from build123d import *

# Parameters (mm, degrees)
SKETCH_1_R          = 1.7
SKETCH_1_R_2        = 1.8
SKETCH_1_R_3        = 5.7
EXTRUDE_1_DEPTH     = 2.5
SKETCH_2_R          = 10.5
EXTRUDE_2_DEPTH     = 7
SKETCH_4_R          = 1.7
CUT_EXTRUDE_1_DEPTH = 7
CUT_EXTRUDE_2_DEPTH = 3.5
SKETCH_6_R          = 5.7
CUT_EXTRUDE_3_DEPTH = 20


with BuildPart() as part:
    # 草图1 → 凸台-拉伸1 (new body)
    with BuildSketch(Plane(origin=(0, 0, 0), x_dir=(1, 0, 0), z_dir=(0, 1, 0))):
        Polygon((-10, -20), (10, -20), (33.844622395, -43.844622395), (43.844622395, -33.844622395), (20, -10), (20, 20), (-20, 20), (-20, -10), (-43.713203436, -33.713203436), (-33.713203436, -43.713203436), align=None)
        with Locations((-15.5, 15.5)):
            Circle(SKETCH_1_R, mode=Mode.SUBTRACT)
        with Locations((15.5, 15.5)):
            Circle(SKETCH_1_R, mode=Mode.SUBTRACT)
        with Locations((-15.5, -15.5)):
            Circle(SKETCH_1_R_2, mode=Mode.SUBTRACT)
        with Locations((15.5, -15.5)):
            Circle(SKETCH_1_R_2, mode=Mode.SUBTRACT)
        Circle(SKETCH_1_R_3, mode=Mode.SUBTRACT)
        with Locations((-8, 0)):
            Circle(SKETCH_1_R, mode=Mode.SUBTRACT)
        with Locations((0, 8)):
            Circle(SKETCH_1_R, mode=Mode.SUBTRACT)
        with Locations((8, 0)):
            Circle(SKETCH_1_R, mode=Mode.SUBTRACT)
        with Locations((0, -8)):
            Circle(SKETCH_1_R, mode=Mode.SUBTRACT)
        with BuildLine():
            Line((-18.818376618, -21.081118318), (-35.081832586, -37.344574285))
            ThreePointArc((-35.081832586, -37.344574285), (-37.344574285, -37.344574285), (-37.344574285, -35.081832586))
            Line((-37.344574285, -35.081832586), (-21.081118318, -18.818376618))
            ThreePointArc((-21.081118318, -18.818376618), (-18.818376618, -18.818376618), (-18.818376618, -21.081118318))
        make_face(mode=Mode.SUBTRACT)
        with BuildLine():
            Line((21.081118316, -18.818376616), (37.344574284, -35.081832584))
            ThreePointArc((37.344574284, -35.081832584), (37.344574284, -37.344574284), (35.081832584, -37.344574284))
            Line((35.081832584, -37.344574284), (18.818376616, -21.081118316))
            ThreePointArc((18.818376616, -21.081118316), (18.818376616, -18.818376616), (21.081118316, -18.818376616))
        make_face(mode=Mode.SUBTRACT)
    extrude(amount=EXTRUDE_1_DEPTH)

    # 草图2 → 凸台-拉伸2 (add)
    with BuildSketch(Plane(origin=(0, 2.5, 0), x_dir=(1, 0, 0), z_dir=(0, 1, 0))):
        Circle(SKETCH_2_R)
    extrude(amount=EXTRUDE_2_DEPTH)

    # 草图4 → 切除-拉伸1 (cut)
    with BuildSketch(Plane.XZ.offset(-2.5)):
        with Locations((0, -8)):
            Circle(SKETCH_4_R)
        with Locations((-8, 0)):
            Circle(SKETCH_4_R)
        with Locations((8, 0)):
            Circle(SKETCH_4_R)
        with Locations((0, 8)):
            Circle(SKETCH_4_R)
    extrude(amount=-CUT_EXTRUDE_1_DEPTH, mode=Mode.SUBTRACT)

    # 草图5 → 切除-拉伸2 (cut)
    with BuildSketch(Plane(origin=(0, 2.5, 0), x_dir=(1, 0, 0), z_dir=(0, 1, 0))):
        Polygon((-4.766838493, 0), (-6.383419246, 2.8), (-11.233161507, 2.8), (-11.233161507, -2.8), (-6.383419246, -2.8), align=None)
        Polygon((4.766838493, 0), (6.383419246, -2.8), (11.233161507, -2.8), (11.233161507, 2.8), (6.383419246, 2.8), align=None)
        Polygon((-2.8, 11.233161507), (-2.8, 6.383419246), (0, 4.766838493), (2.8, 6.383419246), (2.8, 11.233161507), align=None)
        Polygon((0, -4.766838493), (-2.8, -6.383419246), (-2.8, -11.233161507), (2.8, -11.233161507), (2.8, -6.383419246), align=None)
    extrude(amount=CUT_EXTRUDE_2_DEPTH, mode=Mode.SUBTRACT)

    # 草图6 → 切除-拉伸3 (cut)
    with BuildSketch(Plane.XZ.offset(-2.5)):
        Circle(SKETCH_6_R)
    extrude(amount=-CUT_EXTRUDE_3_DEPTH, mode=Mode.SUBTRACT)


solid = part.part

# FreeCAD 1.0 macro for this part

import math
import FreeCAD as App
import Part
import Sketcher
from FreeCAD import Vector
Q = App.Units.Quantity


def add_polygon(sketch, points):
    """Adds a closed chain of lines whose ends are joined by coincident constraints."""
    first, n = sketch.GeometryCount, len(points)
    for a, b in zip(points, points[1:] + points[:1]):
        sketch.addGeometry(Part.LineSegment(App.Vector(*a, 0), App.Vector(*b, 0)), False)
    for i in range(n):
        sketch.addConstraint(Sketcher.Constraint("Coincident", first + i, 2, first + (i + 1) % n, 1))

doc = App.newDocument("Part")
body = doc.addObject("PartDesign::Body", "Body")

# Sketch on XZ plane
sketch1 = body.newObject("Sketcher::SketchObject", "Sketch")
sketch1.AttachmentSupport = (doc.getObject("XZ_Plane"), [""])
sketch1.MapMode = "FlatFace"
add_polygon(sketch1, [(-10, 20), (10, 20), (33.8, 43.8), (43.8, 33.8), (20, 10), (20, -20), (-20, -20), (-20, 10), (-43.7, 33.7), (-33.7, 43.7)])  # lines 0-9
sketch1.addGeometry(Part.ArcOfCircle(Part.Circle(Vector(-19.9, 19.9, 0), Vector(0, 0, 1), 1.6), math.radians(-135), math.radians(45)), False)  # 10
sketch1.addGeometry(Part.LineSegment(Vector(-18.8, 21.1, 0), Vector(-35.1, 37.3, 0)), False)  # 11
sketch1.addGeometry(Part.ArcOfCircle(Part.Circle(Vector(-36.2, 36.2, 0), Vector(0, 0, 1), 1.6), math.radians(45), math.radians(225)), False)  # 12
sketch1.addGeometry(Part.LineSegment(Vector(-37.3, 35.1, 0), Vector(-21.1, 18.8, 0)), False)  # 13
sketch1.addGeometry(Part.Circle(Vector(-15.5, 15.5, 0), Vector(0, 0, 1), 1.8), False)  # 14
sketch1.addGeometry(Part.ArcOfCircle(Part.Circle(Vector(19.9, 19.9, 0), Vector(0, 0, 1), 1.6), math.radians(135), math.radians(315)), False)  # 15
sketch1.addGeometry(Part.LineSegment(Vector(21.1, 18.8, 0), Vector(37.3, 35.1, 0)), False)  # 16
sketch1.addGeometry(Part.ArcOfCircle(Part.Circle(Vector(36.2, 36.2, 0), Vector(0, 0, 1), 1.6), math.radians(-45), math.radians(135)), False)  # 17
sketch1.addGeometry(Part.LineSegment(Vector(35.1, 37.3, 0), Vector(18.8, 21.1, 0)), False)  # 18
sketch1.addGeometry(Part.Circle(Vector(15.5, 15.5, 0), Vector(0, 0, 1), 1.8), False)  # 19
sketch1.addGeometry(Part.Circle(Vector(-8, 0, 0), Vector(0, 0, 1), 1.7), False)  # 20
sketch1.addGeometry(Part.Circle(Vector(-15.5, -15.5, 0), Vector(0, 0, 1), 1.7), False)  # 21
sketch1.addGeometry(Part.Circle(Vector(0, 8, 0), Vector(0, 0, 1), 1.7), False)  # 22
sketch1.addGeometry(Part.Circle(Vector(0, 0, 0), Vector(0, 0, 1), 5.7), False)  # 23
sketch1.addGeometry(Part.Circle(Vector(8, 0, 0), Vector(0, 0, 1), 1.7), False)  # 24
sketch1.addGeometry(Part.Circle(Vector(0, -8, 0), Vector(0, 0, 1), 1.7), False)  # 25
sketch1.addGeometry(Part.Circle(Vector(15.5, -15.5, 0), Vector(0, 0, 1), 1.7), False)  # 26
sketch1.addConstraint([
    Sketcher.Constraint("Tangent", 10, 2, 11, 1),
    Sketcher.Constraint("Tangent", 11, 2, 12, 1),
    Sketcher.Constraint("Tangent", 12, 2, 13, 1),
    Sketcher.Constraint("Tangent", 13, 2, 10, 1),
    Sketcher.Constraint("Tangent", 15, 2, 16, 1),
    Sketcher.Constraint("Tangent", 16, 2, 17, 1),
    Sketcher.Constraint("Tangent", 17, 2, 18, 1),
    Sketcher.Constraint("Tangent", 18, 2, 15, 1),
    Sketcher.Constraint("Horizontal", 0),
    Sketcher.Constraint("Vertical", 4),
    Sketcher.Constraint("Horizontal", 5),
    Sketcher.Constraint("Vertical", 6),
    Sketcher.Constraint("Coincident", 23, 3, -1, 1),
    Sketcher.Constraint("Equal", 10, 12),
    Sketcher.Constraint("Equal", 12, 15),
    Sketcher.Constraint("Equal", 15, 17),
    Sketcher.Constraint("Equal", 14, 19),
    Sketcher.Constraint("Equal", 20, 21),
    Sketcher.Constraint("Equal", 21, 22),
    Sketcher.Constraint("Equal", 22, 24),
    Sketcher.Constraint("Equal", 24, 25),
    Sketcher.Constraint("Equal", 25, 26),
    Sketcher.Constraint("Symmetric", 19, 3, 21, 3, -1, 1),
    Sketcher.Constraint("Symmetric", 20, 3, 24, 3, -1, 1),
    Sketcher.Constraint("Symmetric", 22, 3, 25, 3, -1, 1),
    Sketcher.Constraint("Symmetric", 14, 3, 26, 3, -1, 1),
    Sketcher.Constraint("Symmetric", 10, 3, 15, 3, -2),
    Sketcher.Constraint("Symmetric", 12, 3, 17, 3, -2),
    Sketcher.Constraint("Symmetric", 14, 3, 19, 3, -2),
    Sketcher.Constraint("Symmetric", 3, 2, 6, 2, -2),
    Sketcher.Constraint("PointOnObject", 20, 3, -1),
    Sketcher.Constraint("PointOnObject", 22, 3, -2),
    Sketcher.Constraint("Perpendicular", 1, 2),
    Sketcher.Constraint("Perpendicular", 2, 3),
    Sketcher.Constraint("Perpendicular", 3, 7),
    Sketcher.Constraint("Perpendicular", 7, 8),
    Sketcher.Constraint("Perpendicular", 8, 9),
    Sketcher.Constraint("Parallel", 9, 11),
    Sketcher.Constraint("Perpendicular", 13, 16),
    Sketcher.Constraint("Equal", 1, 3),
    Sketcher.Constraint("Equal", 2, 8),
    Sketcher.Constraint("Diameter", 14, 3.6),
    Sketcher.Constraint("Diameter", 20, 3.4),
    Sketcher.Constraint("Diameter", 23, 11.4),
    Sketcher.Constraint("Radius", 10, 1.6),
    Sketcher.Constraint("DistanceX", 0, 1, 0, 2, 20.0),
    Sketcher.Constraint("DistanceX", 5, 2, 5, 1, 40.0),
    Sketcher.Constraint("DistanceY", 4, 2, 4, 1, 30.0),
    Sketcher.Constraint("Distance", 11, 23.0),
    Sketcher.Constraint("DistanceX", 20, 3, -1, 1, 8.0),
    Sketcher.Constraint("DistanceY", -1, 1, 22, 3, 8.0),
    Sketcher.Constraint("DistanceY", -1, 1, 0, 2, 20.0),
    Sketcher.Constraint("DistanceX", 14, 3, 19, 3, 31.0),
    Sketcher.Constraint("DistanceY", 21, 3, 14, 3, 31.0),
    Sketcher.Constraint("DistanceX", 7, 2, 12, 3, 7.5),
    Sketcher.Constraint("DistanceY", 7, 2, 12, 3, 2.5),
    Sketcher.Constraint("Distance", 1, 33.721388),
    Sketcher.Constraint("DistanceY", -1, 1, 10, 2, 21.081118),
])
pad1 = body.newObject("PartDesign::Pad", "Pad")
pad1.Profile = sketch1
pad1.Length = 2.5
pad1.Reversed = True

# Sketch on XZ plane
sketch2 = body.newObject("Sketcher::SketchObject", "Sketch001")
sketch2.AttachmentSupport = (doc.getObject("XZ_Plane"), [""])
sketch2.MapMode = "FlatFace"
sketch2.AttachmentOffset = App.Placement(Vector(0, 0, -2.5), App.Rotation())
sketch2.addGeometry(Part.Circle(Vector(0, 0, 0), Vector(0, 0, 1), 10), False)
sketch2.addConstraint([
    Sketcher.Constraint("Coincident", 0, 3, -1, 1),
    Sketcher.Constraint("Diameter", 0, 21.0),
])
pad2 = body.newObject("PartDesign::Pad", "Pad001")
pad2.Profile = sketch2
pad2.Length = 7
pad2.Reversed = True

# Sketch on XZ plane
sketch3 = body.newObject("Sketcher::SketchObject", "Sketch002")
sketch3.AttachmentSupport = (doc.getObject("XZ_Plane"), [""])
sketch3.MapMode = "FlatFace"
sketch3.AttachmentOffset = App.Placement(Vector(0, 0, -2.5), App.Rotation())
sketch3.addGeometry([
    Part.Circle(Vector(0, -8, 0), Vector(0, 0, 1), 1.7),
    Part.Circle(Vector(-8, 0, 0), Vector(0, 0, 1), 1.7),
    Part.Circle(Vector(8, 0, 0), Vector(0, 0, 1), 1.7),
    Part.Circle(Vector(0, 8, 0), Vector(0, 0, 1), 1.7),
], False)
sketch3.addConstraint([
    Sketcher.Constraint("Equal", 0, 1),
    Sketcher.Constraint("Equal", 1, 2),
    Sketcher.Constraint("Equal", 2, 3),
    Sketcher.Constraint("Symmetric", 1, 3, 2, 3, -1, 1),
    Sketcher.Constraint("Symmetric", 0, 3, 3, 3, -1, 1),
    Sketcher.Constraint("PointOnObject", 0, 3, -2),
    Sketcher.Constraint("PointOnObject", 1, 3, -1),
    Sketcher.Constraint("Diameter", 0, 3.4),
    Sketcher.Constraint("DistanceY", 0, 3, -1, 1, 8.0),
    Sketcher.Constraint("DistanceX", 1, 3, -1, 1, 8.0),
])
pocket1 = body.newObject("PartDesign::Pocket", "Pocket")
pocket1.Profile = sketch3
pocket1.Length = 7

# Sketch on XZ plane
sketch4 = body.newObject("Sketcher::SketchObject", "Sketch003")
sketch4.AttachmentSupport = (doc.getObject("XZ_Plane"), [""])
sketch4.MapMode = "FlatFace"
sketch4.AttachmentOffset = App.Placement(Vector(0, 0, -2.5), App.Rotation())
add_polygon(sketch4, [(-4.8, 0), (-6.4, -2.8), (-11.2, -2.8), (-11.2, 2.8), (-6.4, 2.8)])  # lines 0-4
add_polygon(sketch4, [(4.8, 0), (6.4, 2.8), (11.2, 2.8), (11.2, -2.8), (6.4, -2.8)])  # lines 5-9
add_polygon(sketch4, [(-2.8, -11.2), (-2.8, -6.4), (0, -4.8), (2.8, -6.4), (2.8, -11.2)])  # lines 10-14
add_polygon(sketch4, [(0, 4.8), (-2.8, 6.4), (-2.8, 11.2), (2.8, 11.2), (2.8, 6.4)])  # lines 15-19
sketch4.addConstraint([
    Sketcher.Constraint("Horizontal", 1),
    Sketcher.Constraint("Vertical", 2),
    Sketcher.Constraint("Horizontal", 3),
    Sketcher.Constraint("Horizontal", 6),
    Sketcher.Constraint("Vertical", 7),
    Sketcher.Constraint("Horizontal", 8),
    Sketcher.Constraint("Vertical", 10),
    Sketcher.Constraint("Vertical", 13),
    Sketcher.Constraint("Horizontal", 14),
    Sketcher.Constraint("Vertical", 16),
    Sketcher.Constraint("Horizontal", 17),
    Sketcher.Constraint("Vertical", 18),
    Sketcher.Constraint("Symmetric", 0, 2, 5, 2, -1, 1),
    Sketcher.Constraint("Symmetric", 2, 2, 7, 2, -1, 1),
    Sketcher.Constraint("Symmetric", 4, 2, 9, 2, -1, 1),
    Sketcher.Constraint("Symmetric", 12, 2, 15, 2, -1, 1),
    Sketcher.Constraint("Symmetric", 14, 2, 17, 2, -1, 1),
    Sketcher.Constraint("Symmetric", 11, 2, 19, 2, -1, 1),
    Sketcher.Constraint("Symmetric", 3, 2, 5, 2, -2),
    Sketcher.Constraint("Symmetric", 10, 2, 12, 2, -2),
    Sketcher.Constraint("PointOnObject", 4, 2, -1),
    Sketcher.Constraint("PointOnObject", 11, 2, -2),
    Sketcher.Constraint("Parallel", 4, 9),
    Sketcher.Constraint("Perpendicular", 9, 11),
    Sketcher.Constraint("Parallel", 11, 19),
    Sketcher.Constraint("Equal", 17, 2),
    Sketcher.Constraint("Equal", 8, 10),
    Sketcher.Constraint("Angle", 0, Q("-120 deg")),
    Sketcher.Constraint("DistanceX", 14, 2, 14, 1, 5.6),
    Sketcher.Constraint("DistanceX", 4, 2, 6, 2, 16.0),
    Sketcher.Constraint("DistanceX", 1, 2, 1, 1, 4.849742),
    Sketcher.Constraint("DistanceY", 10, 2, -1, 1, 6.383419),
])
pocket2 = body.newObject("PartDesign::Pocket", "Pocket001")
pocket2.Profile = sketch4
pocket2.Length = 3.5

# Sketch on XZ plane
sketch5 = body.newObject("Sketcher::SketchObject", "Sketch004")
sketch5.AttachmentSupport = (doc.getObject("XZ_Plane"), [""])
sketch5.MapMode = "FlatFace"
sketch5.AttachmentOffset = App.Placement(Vector(0, 0, -2.5), App.Rotation())
sketch5.addGeometry(Part.Circle(Vector(0, 0, 0), Vector(0, 0, 1), 6), False)
sketch5.addConstraint([
    Sketcher.Constraint("Coincident", 0, 3, -1, 1),
    Sketcher.Constraint("Diameter", 0, 11.4),
])
pocket3 = body.newObject("PartDesign::Pocket", "Pocket002")
pocket3.Profile = sketch5
pocket3.Length = 20

doc.recompute()
